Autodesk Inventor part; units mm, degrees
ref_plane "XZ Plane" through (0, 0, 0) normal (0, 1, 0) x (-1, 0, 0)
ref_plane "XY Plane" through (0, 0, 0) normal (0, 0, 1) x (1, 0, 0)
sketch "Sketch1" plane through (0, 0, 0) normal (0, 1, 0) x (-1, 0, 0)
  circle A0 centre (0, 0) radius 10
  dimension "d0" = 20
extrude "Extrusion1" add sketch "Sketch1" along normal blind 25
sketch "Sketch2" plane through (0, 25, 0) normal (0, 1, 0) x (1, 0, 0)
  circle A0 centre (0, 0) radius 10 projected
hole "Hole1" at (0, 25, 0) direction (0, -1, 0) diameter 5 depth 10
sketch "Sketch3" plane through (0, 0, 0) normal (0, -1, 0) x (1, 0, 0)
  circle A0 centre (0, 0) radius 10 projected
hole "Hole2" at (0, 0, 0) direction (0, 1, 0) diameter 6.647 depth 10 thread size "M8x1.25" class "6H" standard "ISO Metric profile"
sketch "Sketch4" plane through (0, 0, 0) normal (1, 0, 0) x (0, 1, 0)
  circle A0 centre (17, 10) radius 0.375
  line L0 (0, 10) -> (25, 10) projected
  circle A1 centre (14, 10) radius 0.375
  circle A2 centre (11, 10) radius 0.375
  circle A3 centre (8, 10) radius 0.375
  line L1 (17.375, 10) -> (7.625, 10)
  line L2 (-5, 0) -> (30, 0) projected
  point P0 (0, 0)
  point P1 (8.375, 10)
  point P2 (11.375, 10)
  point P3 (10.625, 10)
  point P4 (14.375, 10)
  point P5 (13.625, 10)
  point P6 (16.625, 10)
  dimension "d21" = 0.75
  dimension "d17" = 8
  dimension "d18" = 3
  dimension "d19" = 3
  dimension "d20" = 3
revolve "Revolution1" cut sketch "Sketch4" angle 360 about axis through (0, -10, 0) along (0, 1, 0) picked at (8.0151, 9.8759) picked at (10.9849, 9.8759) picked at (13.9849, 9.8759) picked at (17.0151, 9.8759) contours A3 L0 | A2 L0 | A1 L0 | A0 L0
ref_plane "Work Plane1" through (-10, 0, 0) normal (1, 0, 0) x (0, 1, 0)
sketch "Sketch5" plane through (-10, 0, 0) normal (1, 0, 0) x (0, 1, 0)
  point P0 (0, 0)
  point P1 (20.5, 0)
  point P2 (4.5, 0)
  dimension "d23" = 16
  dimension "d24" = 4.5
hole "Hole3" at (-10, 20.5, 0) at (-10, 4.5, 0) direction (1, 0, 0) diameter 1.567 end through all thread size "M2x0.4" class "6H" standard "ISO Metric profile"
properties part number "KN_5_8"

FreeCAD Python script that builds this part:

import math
import FreeCAD as App
import Part
import Sketcher

V = App.Vector

doc = App.newDocument("Part")
params = doc.addObject("Spreadsheet::Sheet", "Params")
for row, (alias, value) in enumerate([
    ("sketch1_diameter", "20 mm"),
    ("pad1_length", "25 mm"),
    ("sketch2_diameter", "5 mm"),
    ("hole_diameter", "5 mm"),
    ("hole_depth", "10 mm"),
    ("hole2_diameter", "6.647 mm"),
    ("hole2_depth", "10 mm"),
    ("groove_angle", "360 deg"),
    ("hole3_diameter", "1.567 mm"),
], start=1):
    params.set(f"A{row}", alias)
    params.set(f"B{row}", "=" + value)
    params.setAlias(f"B{row}", alias)

body = doc.addObject("PartDesign::Body", "Body")

# Sketch on XZ plane
sketch1 = doc.addObject("Sketcher::SketchObject", "Sketch")
body.addObject(sketch1)
sketch1.AttachmentSupport = (doc.XZ_Plane, [""])
sketch1.MapMode = "FlatFace"
sketch1.addGeometry(Part.Circle(V(0, 0, 0), V(0, 0, 1), 10), False)
sketch1.addConstraint(Sketcher.Constraint("Coincident", 0, 3, -1, 1))
sketch1.addConstraint(Sketcher.Constraint("Diameter", 0, 20.0))
sketch1.setExpression("Constraints[1]", "Params.sketch1_diameter")
pad1 = doc.addObject("PartDesign::Pad", "Pad")
body.addObject(pad1)
pad1.Profile = sketch1
pad1.setExpression("Length", "Params.pad1_length")
pad1.Reversed = True

# Sketch on XZ plane
sketch2 = doc.addObject("Sketcher::SketchObject", "Sketch001")
body.addObject(sketch2)
sketch2.AttachmentSupport = (doc.XZ_Plane, [""])
sketch2.MapMode = "FlatFace"
sketch2.AttachmentOffset = App.Placement(V(0, 0, -25), App.Rotation())
sketch2.addGeometry(Part.Circle(V(0, 0, 0), V(0, 0, 1), 2.5), False)
sketch2.addConstraint(Sketcher.Constraint("Coincident", 0, 3, -1, 1))
sketch2.addConstraint(Sketcher.Constraint("Diameter", 0, 5.0))
sketch2.setExpression("Constraints[1]", "Params.sketch2_diameter")
doc.recompute()
hole = doc.addObject("PartDesign::Hole", "Hole")
body.addObject(hole)
hole.Profile = sketch2
hole.ThreadType = "None"
hole.setExpression("Diameter", "Params.hole_diameter")
hole.DepthType = "Dimension"
hole.setExpression("Depth", "Params.hole_depth")
hole.DrillPoint = "Flat"
hole.Reversed = True

# Sketch on XZ plane
sketch3 = doc.addObject("Sketcher::SketchObject", "Sketch002")
body.addObject(sketch3)
sketch3.AttachmentSupport = (doc.XZ_Plane, [""])
sketch3.MapMode = "FlatFace"
sketch3.addGeometry(Part.Circle(V(0, 0, 0), V(0, 0, 1), 3.3), False)
sketch3.addConstraint(Sketcher.Constraint("Coincident", 0, 3, -1, 1))
sketch3.addConstraint(Sketcher.Constraint("Diameter", 0, 6.647))
doc.recompute()
hole2 = doc.addObject("PartDesign::Hole", "Hole001")
body.addObject(hole2)
hole2.Profile = sketch3
hole2.ThreadType = "None"
hole2.setExpression("Diameter", "Params.hole2_diameter")
hole2.DepthType = "Dimension"
hole2.setExpression("Depth", "Params.hole2_depth")
hole2.DrillPoint = "Flat"

# Sketch on YZ plane
sketch4 = doc.addObject("Sketcher::SketchObject", "Sketch003")
body.addObject(sketch4)
sketch4.AttachmentSupport = (doc.YZ_Plane, [""])
sketch4.MapMode = "FlatFace"
sketch4.addGeometry(Part.ArcOfCircle(Part.Circle(V(8, 10, 0), V(0, 0, 1), 0.38), math.radians(180), math.radians(360)), False)
sketch4.addGeometry(Part.LineSegment(V(8.38, 10, 0), V(7.62, 10, 0)), False)
sketch4.addGeometry(Part.ArcOfCircle(Part.Circle(V(11, 10, 0), V(0, 0, 1), 0.38), math.radians(180), math.radians(360)), False)
sketch4.addGeometry(Part.LineSegment(V(11.38, 10, 0), V(10.62, 10, 0)), False)
sketch4.addGeometry(Part.ArcOfCircle(Part.Circle(V(14, 10, 0), V(0, 0, 1), 0.38), math.radians(180), math.radians(360)), False)
sketch4.addGeometry(Part.LineSegment(V(14.38, 10, 0), V(13.62, 10, 0)), False)
sketch4.addGeometry(Part.ArcOfCircle(Part.Circle(V(17, 10, 0), V(0, 0, 1), 0.38), math.radians(180), math.radians(360)), False)
sketch4.addGeometry(Part.LineSegment(V(17.38, 10, 0), V(16.62, 10, 0)), False)
sketch4.addConstraint(Sketcher.Constraint("Coincident", 0, 1, 1, 2))
sketch4.addConstraint(Sketcher.Constraint("Coincident", 1, 1, 0, 2))
sketch4.addConstraint(Sketcher.Constraint("Coincident", 2, 1, 3, 2))
sketch4.addConstraint(Sketcher.Constraint("Coincident", 3, 1, 2, 2))
sketch4.addConstraint(Sketcher.Constraint("Coincident", 4, 1, 5, 2))
sketch4.addConstraint(Sketcher.Constraint("Coincident", 5, 1, 4, 2))
sketch4.addConstraint(Sketcher.Constraint("Coincident", 6, 1, 7, 2))
sketch4.addConstraint(Sketcher.Constraint("Coincident", 7, 1, 6, 2))
sketch4.addConstraint(Sketcher.Constraint("Horizontal", 1))
sketch4.addConstraint(Sketcher.Constraint("Horizontal", 3))
sketch4.addConstraint(Sketcher.Constraint("Horizontal", 5))
sketch4.addConstraint(Sketcher.Constraint("Horizontal", 7))
sketch4.addConstraint(Sketcher.Constraint("Equal", 0, 2))
sketch4.addConstraint(Sketcher.Constraint("Equal", 2, 4))
sketch4.addConstraint(Sketcher.Constraint("Equal", 4, 6))
sketch4.addConstraint(Sketcher.Constraint("Horizontal", 0, 3, 2, 3))
sketch4.addConstraint(Sketcher.Constraint("Horizontal", 2, 3, 4, 3))
sketch4.addConstraint(Sketcher.Constraint("Horizontal", 4, 3, 6, 3))
sketch4.addConstraint(Sketcher.Constraint("Horizontal", 6, 3, 0, 1))
sketch4.addConstraint(Sketcher.Constraint("Horizontal", 1, 1, 2, 1))
sketch4.addConstraint(Sketcher.Constraint("Horizontal", 3, 1, 4, 1))
sketch4.addConstraint(Sketcher.Constraint("Horizontal", 5, 1, 6, 1))
sketch4.addConstraint(Sketcher.Constraint("DistanceX", -1, 1, 0, 3, 8.0))
sketch4.addConstraint(Sketcher.Constraint("Radius", 0, 0.375))
sketch4.addConstraint(Sketcher.Constraint("DistanceX", 0, 3, 2, 3, 3.0))
sketch4.addConstraint(Sketcher.Constraint("DistanceX", 2, 3, 4, 3, 3.0))
sketch4.addConstraint(Sketcher.Constraint("DistanceX", 4, 3, 6, 3, 3.0))
sketch4.addConstraint(Sketcher.Constraint("DistanceY", -1, 1, 0, 3, 10.0))
groove = doc.addObject("PartDesign::Groove", "Groove")
body.addObject(groove)
groove.Profile = sketch4
groove.ReferenceAxis = (sketch4, ["H_Axis"])
groove.setExpression("Angle", "Params.groove_angle")

# Sketch on YZ plane
sketch5 = doc.addObject("Sketcher::SketchObject", "Sketch004")
body.addObject(sketch5)
sketch5.AttachmentSupport = (doc.YZ_Plane, [""])
sketch5.MapMode = "FlatFace"
sketch5.AttachmentOffset = App.Placement(V(0, 0, -10), App.Rotation())
sketch5.addGeometry(Part.Circle(V(20.5, 0, 0), V(0, 0, 1), 0.8), False)
sketch5.addGeometry(Part.Circle(V(4.5, 0, 0), V(0, 0, 1), 0.8), False)
sketch5.addConstraint(Sketcher.Constraint("Equal", 0, 1))
sketch5.addConstraint(Sketcher.Constraint("PointOnObject", 0, 3, -1))
sketch5.addConstraint(Sketcher.Constraint("PointOnObject", 1, 3, -1))
sketch5.addConstraint(Sketcher.Constraint("Diameter", 0, 1.567))
sketch5.addConstraint(Sketcher.Constraint("DistanceX", 1, 3, 0, 3, 16.0))
sketch5.addConstraint(Sketcher.Constraint("DistanceX", -1, 1, 0, 3, 20.5))
doc.recompute()
hole3 = doc.addObject("PartDesign::Hole", "Hole002")
body.addObject(hole3)
hole3.Profile = sketch5
hole3.ThreadType = "None"
hole3.setExpression("Diameter", "Params.hole3_diameter")
hole3.DepthType = "ThroughAll"
hole3.Reversed = True

doc.recompute()
